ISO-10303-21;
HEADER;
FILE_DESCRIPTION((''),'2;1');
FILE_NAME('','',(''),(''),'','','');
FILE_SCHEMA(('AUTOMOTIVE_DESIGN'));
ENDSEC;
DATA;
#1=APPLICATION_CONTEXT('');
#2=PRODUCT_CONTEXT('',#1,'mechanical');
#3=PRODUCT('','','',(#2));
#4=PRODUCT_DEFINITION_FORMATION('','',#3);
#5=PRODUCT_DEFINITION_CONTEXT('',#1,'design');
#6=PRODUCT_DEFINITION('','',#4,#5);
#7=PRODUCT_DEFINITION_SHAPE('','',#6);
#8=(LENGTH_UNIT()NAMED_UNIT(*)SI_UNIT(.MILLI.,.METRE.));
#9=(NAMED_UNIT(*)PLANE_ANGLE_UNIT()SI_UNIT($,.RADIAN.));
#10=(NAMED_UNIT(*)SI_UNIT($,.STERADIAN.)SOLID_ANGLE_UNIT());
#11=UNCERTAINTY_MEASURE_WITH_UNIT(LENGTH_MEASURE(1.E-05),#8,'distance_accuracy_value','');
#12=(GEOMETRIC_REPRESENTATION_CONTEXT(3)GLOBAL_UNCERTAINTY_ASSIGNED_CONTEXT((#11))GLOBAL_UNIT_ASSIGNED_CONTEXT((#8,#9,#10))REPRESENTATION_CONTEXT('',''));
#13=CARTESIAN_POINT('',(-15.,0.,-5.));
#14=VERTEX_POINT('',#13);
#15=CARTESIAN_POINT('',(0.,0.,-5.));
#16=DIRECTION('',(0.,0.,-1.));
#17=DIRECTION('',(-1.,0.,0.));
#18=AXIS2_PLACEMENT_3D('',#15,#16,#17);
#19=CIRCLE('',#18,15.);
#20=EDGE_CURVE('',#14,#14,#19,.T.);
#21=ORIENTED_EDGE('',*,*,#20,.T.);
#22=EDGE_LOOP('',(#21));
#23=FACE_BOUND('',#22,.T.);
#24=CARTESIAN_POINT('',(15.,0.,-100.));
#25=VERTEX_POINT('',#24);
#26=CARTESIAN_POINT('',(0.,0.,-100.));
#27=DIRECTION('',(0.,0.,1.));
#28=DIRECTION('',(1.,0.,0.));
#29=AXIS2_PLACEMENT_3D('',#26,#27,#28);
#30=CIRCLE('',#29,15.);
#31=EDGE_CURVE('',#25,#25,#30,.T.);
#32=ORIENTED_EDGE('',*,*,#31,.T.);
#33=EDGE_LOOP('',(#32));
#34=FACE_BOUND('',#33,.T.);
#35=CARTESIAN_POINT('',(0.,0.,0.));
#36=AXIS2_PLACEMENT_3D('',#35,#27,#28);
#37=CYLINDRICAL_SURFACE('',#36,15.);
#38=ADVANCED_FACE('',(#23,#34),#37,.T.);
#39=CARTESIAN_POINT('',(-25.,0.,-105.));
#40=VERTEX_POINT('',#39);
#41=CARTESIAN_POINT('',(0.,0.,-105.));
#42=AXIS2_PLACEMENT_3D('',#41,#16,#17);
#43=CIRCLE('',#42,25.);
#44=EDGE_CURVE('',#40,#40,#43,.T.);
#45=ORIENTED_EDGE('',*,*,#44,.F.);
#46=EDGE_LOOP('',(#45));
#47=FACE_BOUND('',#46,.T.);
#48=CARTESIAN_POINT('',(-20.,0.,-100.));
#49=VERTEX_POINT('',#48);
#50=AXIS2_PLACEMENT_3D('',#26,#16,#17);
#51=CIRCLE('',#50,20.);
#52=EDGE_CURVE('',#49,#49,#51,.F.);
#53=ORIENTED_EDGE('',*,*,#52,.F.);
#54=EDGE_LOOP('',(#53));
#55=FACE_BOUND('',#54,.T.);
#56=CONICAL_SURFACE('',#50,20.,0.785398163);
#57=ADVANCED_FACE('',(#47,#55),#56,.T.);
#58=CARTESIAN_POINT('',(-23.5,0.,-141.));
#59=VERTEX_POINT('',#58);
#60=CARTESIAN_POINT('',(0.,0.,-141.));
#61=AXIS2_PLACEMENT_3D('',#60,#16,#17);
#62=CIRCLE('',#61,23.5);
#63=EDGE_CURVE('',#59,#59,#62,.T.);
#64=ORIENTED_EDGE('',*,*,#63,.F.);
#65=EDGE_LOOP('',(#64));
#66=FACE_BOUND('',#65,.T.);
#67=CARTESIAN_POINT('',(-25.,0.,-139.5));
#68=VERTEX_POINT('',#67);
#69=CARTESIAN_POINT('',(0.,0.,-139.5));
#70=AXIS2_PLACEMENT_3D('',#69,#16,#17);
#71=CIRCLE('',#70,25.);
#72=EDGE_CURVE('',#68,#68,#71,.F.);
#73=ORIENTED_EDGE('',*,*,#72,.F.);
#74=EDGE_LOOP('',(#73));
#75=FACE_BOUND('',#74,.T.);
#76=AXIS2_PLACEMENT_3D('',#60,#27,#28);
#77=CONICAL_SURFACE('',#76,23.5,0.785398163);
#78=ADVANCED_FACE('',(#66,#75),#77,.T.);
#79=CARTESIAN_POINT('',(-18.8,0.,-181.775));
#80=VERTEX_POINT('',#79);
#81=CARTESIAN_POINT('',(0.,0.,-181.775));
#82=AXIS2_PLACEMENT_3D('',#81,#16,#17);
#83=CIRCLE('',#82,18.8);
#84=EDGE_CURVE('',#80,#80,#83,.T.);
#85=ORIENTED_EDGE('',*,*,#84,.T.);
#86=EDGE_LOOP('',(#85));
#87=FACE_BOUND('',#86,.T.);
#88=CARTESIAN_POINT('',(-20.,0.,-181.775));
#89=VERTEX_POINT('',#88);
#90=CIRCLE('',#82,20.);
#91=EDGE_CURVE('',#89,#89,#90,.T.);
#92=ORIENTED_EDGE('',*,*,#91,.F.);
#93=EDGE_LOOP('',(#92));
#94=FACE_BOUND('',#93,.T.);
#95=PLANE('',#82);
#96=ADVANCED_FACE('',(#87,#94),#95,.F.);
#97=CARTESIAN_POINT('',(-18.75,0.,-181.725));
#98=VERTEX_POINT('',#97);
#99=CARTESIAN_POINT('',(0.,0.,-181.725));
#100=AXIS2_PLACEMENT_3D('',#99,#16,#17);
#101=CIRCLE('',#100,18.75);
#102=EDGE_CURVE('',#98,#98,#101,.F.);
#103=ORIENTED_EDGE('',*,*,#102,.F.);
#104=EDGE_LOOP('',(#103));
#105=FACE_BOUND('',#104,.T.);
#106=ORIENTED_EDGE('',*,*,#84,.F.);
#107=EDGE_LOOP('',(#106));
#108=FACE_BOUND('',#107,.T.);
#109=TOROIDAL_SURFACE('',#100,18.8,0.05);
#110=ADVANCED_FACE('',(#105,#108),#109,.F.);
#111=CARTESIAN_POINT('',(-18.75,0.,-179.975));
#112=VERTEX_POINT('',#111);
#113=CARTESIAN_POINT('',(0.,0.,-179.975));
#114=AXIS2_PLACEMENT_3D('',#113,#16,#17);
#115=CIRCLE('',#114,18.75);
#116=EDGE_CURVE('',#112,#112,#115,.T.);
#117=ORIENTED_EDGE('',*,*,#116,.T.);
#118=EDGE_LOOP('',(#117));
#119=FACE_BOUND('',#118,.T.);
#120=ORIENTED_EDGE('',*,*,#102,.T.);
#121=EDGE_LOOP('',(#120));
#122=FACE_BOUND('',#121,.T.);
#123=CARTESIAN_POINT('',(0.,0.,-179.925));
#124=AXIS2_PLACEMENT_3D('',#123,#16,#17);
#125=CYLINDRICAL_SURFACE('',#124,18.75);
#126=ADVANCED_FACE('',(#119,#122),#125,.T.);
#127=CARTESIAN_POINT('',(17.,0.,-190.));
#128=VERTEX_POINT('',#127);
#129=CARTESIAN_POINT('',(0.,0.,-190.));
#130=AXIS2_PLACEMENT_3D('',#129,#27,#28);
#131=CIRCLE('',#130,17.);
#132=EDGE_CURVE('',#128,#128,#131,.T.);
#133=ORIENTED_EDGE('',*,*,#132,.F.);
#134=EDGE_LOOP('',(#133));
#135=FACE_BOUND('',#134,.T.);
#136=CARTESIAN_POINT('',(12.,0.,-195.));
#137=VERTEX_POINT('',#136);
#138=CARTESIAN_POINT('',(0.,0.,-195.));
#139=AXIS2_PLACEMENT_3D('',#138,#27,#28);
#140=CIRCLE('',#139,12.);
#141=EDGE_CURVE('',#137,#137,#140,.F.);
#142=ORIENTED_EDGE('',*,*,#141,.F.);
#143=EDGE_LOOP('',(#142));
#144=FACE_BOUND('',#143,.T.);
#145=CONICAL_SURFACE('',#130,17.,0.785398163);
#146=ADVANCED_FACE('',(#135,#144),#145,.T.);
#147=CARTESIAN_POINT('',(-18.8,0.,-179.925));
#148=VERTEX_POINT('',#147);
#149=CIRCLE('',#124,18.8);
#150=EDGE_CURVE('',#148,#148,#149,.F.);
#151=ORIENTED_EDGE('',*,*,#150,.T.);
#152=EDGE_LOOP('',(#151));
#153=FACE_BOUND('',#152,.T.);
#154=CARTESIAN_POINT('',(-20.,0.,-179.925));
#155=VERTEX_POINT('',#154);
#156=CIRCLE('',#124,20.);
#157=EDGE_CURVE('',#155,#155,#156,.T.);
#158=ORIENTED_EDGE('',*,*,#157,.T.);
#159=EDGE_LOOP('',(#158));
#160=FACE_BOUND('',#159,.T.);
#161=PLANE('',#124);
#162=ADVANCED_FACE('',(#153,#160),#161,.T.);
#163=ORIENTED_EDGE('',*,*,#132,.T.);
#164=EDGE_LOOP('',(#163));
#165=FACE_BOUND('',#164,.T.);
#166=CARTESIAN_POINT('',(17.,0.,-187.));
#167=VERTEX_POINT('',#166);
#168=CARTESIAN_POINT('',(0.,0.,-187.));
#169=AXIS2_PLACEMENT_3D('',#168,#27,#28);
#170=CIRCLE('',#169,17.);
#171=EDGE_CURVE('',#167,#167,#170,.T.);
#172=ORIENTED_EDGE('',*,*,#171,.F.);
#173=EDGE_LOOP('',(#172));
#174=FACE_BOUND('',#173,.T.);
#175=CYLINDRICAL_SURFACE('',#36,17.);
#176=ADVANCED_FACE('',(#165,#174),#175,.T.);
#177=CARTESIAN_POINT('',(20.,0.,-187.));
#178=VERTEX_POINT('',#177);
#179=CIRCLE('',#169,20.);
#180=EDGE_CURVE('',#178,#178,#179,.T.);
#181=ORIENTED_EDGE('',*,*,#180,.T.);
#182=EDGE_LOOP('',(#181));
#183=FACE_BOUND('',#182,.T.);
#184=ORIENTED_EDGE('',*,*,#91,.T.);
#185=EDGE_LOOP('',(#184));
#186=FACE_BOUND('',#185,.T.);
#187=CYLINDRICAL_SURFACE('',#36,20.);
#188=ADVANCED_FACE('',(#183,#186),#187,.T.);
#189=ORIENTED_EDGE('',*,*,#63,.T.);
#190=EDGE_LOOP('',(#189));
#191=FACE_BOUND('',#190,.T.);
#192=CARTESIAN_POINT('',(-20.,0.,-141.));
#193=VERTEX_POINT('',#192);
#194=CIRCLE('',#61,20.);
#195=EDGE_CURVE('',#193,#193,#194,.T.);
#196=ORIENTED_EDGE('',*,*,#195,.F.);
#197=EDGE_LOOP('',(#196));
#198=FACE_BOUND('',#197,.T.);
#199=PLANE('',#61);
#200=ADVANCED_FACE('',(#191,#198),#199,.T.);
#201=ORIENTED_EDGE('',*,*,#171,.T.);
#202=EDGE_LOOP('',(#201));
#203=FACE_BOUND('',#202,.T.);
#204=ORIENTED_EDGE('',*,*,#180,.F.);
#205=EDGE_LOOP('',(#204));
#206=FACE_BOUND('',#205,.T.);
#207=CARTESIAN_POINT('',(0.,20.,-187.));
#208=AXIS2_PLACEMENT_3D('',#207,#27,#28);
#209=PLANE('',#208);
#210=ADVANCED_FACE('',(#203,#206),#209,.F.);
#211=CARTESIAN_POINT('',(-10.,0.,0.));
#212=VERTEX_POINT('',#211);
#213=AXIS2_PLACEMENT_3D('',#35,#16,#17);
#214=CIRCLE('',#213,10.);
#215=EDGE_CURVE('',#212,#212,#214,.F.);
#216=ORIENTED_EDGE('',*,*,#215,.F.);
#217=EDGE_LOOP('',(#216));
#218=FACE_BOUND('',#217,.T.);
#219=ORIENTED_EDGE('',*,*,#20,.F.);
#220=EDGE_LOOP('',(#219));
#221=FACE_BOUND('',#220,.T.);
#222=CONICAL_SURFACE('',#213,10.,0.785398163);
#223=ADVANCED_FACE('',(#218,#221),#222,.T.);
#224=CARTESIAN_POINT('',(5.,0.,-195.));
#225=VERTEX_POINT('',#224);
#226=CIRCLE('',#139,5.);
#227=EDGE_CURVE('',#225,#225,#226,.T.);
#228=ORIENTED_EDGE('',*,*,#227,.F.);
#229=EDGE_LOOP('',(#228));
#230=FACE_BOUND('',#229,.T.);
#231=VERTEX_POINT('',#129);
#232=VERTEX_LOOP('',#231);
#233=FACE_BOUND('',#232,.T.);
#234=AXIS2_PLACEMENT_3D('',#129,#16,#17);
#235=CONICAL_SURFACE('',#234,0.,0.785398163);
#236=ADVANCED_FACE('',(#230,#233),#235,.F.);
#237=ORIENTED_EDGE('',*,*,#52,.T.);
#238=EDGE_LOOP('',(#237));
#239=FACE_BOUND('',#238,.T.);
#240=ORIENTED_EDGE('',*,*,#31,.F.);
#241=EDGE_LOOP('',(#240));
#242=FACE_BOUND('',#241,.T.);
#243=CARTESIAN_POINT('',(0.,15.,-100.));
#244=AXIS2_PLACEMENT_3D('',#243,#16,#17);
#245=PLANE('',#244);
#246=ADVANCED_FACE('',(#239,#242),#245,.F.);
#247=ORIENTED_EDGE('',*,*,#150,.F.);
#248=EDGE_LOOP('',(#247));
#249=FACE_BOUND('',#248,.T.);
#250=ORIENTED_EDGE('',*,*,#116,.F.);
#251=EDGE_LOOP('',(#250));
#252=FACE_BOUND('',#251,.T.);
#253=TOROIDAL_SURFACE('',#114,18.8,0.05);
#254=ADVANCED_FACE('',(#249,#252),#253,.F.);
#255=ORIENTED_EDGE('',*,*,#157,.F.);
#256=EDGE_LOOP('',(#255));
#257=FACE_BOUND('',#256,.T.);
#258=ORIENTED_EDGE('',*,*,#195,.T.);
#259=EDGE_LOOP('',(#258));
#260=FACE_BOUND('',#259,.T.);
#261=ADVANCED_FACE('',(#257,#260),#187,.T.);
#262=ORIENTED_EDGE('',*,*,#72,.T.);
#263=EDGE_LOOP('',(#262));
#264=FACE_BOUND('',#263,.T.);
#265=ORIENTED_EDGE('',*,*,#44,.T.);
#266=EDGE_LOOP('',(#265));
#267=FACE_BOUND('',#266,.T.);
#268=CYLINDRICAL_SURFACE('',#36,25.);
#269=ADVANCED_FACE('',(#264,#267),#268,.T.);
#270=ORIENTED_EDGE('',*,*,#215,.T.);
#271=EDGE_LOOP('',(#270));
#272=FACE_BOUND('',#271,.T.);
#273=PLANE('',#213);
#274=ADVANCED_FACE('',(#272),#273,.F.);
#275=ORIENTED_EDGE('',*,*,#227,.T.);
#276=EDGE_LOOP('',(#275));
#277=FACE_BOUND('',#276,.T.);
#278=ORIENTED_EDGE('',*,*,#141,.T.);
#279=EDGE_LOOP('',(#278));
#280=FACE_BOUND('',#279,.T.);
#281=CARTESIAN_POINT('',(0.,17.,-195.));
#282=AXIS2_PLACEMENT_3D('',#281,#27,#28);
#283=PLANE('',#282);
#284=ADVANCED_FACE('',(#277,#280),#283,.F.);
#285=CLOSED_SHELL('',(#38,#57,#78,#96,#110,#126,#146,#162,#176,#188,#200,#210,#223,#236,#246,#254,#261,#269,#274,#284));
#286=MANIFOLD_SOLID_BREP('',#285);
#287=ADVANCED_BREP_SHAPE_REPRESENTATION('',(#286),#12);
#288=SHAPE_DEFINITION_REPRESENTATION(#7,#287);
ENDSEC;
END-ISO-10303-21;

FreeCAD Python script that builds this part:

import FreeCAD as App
import Part
import Sketcher
from FreeCAD import Vector


def edges_at(feature, points):
    """Names of the edges that pass closest to the given points."""
    edges = feature.Shape.Edges
    near = lambda p: min(range(len(edges)), key=lambda i: edges[i].distToShape(Part.Vertex(*p))[0])
    return sorted({f"Edge{near(p) + 1}" for p in points})

doc = App.newDocument("Part")
body = doc.addObject("PartDesign::Body", "Body")

# Sketch on YZ plane
sketch1 = body.newObject("Sketcher::SketchObject", "Sketch")
sketch1.AttachmentSupport = (doc.getObject("YZ_Plane"), [""])
sketch1.MapMode = "FlatFace"
sketch1.addGeometry([
    Part.LineSegment(Vector(15, 0, 0), Vector(0, 0, 0)),  # 0
    Part.LineSegment(Vector(0, 0, 0), Vector(0, -190, 0)),  # 1
    Part.LineSegment(Vector(0, -190, 0), Vector(5, -195, 0)),  # 2
    Part.LineSegment(Vector(5, -195, 0), Vector(17, -195, 0)),  # 3
    Part.LineSegment(Vector(17, -195, 0), Vector(17, -187, 0)),  # 4
    Part.LineSegment(Vector(17, -187, 0), Vector(20, -187, 0)),  # 5
    Part.LineSegment(Vector(20, -187, 0), Vector(20, -147, 0)),  # 6
    Part.LineSegment(Vector(20, -147, 0), Vector(25, -147, 0)),  # 7
    Part.LineSegment(Vector(25, -147, 0), Vector(25, -100, 0)),  # 8
    Part.LineSegment(Vector(25, -100, 0), Vector(15, -100, 0)),  # 9
    Part.LineSegment(Vector(15, -100, 0), Vector(15, 0, 0)),  # 10
], False)
sketch1.addConstraint([
    Sketcher.Constraint("Coincident", 0, 2, 1, 1),
    Sketcher.Constraint("Coincident", 1, 2, 2, 1),
    Sketcher.Constraint("Coincident", 2, 2, 3, 1),
    Sketcher.Constraint("Coincident", 3, 2, 4, 1),
    Sketcher.Constraint("Coincident", 4, 2, 5, 1),
    Sketcher.Constraint("Coincident", 5, 2, 6, 1),
    Sketcher.Constraint("Coincident", 6, 2, 7, 1),
    Sketcher.Constraint("Coincident", 7, 2, 8, 1),
    Sketcher.Constraint("Coincident", 8, 2, 9, 1),
    Sketcher.Constraint("Coincident", 9, 2, 10, 1),
    Sketcher.Constraint("Coincident", 10, 2, 0, 1),
    Sketcher.Constraint("Horizontal", 0),
    Sketcher.Constraint("Vertical", 1),
    Sketcher.Constraint("Horizontal", 3),
    Sketcher.Constraint("Vertical", 4),
    Sketcher.Constraint("Horizontal", 5),
    Sketcher.Constraint("Vertical", 6),
    Sketcher.Constraint("Horizontal", 7),
    Sketcher.Constraint("Vertical", 8),
    Sketcher.Constraint("Horizontal", 9),
    Sketcher.Constraint("Vertical", 10),
    Sketcher.Constraint("Coincident", 0, 2, -1, 1),
    Sketcher.Constraint("DistanceX", 0, 2, 0, 1, 15.0),
    Sketcher.Constraint("DistanceX", 3, 1, 3, 2, 12.0),
    Sketcher.Constraint("DistanceX", 5, 1, 5, 2, 3.0),
    Sketcher.Constraint("DistanceX", 7, 1, 7, 2, 5.0),
    Sketcher.Constraint("DistanceX", 9, 2, 9, 1, 10.0),
    Sketcher.Constraint("DistanceY", 1, 2, 1, 1, 190.0),
    Sketcher.Constraint("DistanceY", 4, 1, 4, 2, 8.0),
    Sketcher.Constraint("DistanceY", 6, 1, 6, 2, 40.0),
    Sketcher.Constraint("DistanceY", 8, 1, 8, 2, 47.0),
    Sketcher.Constraint("DistanceY", 10, 1, 10, 2, 100.0),
])
revolution = body.newObject("PartDesign::Revolution", "Revolution")
revolution.Profile = sketch1
revolution.ReferenceAxis = (sketch1, ["V_Axis"])
revolution.Angle = 360
doc.recompute()

chamfer = body.newObject("PartDesign::Chamfer", "Chamfer")
chamfer.Base = (revolution, edges_at(revolution, [(-25, 0, -100), (-15, 0, 0), (-17, 0, -195)]))
chamfer.Size = 5

# Sketch on XY plane
sketch2 = body.newObject("Sketcher::SketchObject", "Sketch001")
sketch2.AttachmentSupport = (doc.getObject("XY_Plane"), [""])
sketch2.MapMode = "FlatFace"
sketch2.AttachmentOffset = App.Placement(Vector(0, 0, -181.775), App.Rotation())
sketch2.addGeometry([
    Part.Circle(Vector(0, 0, 0), Vector(0, 0, 1), 20),
    Part.Circle(Vector(0, 0, 0), Vector(0, 0, 1), 18.75),
], False)
sketch2.addConstraint([
    Sketcher.Constraint("Coincident", 0, 3, -1, 1),
    Sketcher.Constraint("Coincident", 1, 3, -1, 1),
    Sketcher.Constraint("Diameter", 0, 40.0),
    Sketcher.Constraint("Diameter", 1, 37.5),
])
pocket1 = body.newObject("PartDesign::Pocket", "Pocket")
pocket1.Profile = sketch2
pocket1.Length = 1.85
pocket1.Reversed = True
doc.recompute()

fillet = body.newObject("PartDesign::Fillet", "Fillet")
fillet.Base = (pocket1, edges_at(pocket1, [(18.75, 0, -179.925), (18.75, 0, -181.775)]))
fillet.Radius = 0.05
doc.recompute()

chamfer2 = body.newObject("PartDesign::Chamfer", "Chamfer001")
chamfer2.Base = (fillet, edges_at(fillet, [(-25, 0, -147)]))
chamfer2.Size = 1.5

# Sketch on XY plane
sketch3 = body.newObject("Sketcher::SketchObject", "Sketch002")
sketch3.AttachmentSupport = (doc.getObject("XY_Plane"), [""])
sketch3.MapMode = "FlatFace"
sketch3.AttachmentOffset = App.Placement(Vector(0, 0, -147), App.Rotation())
sketch3.addGeometry([
    Part.Circle(Vector(0, 0, 0), Vector(0, 0, 1), 25),
    Part.Circle(Vector(0, 0, 0), Vector(0, 0, 1), 20),
], False)
sketch3.addConstraint([
    Sketcher.Constraint("Coincident", 0, 3, -1, 1),
    Sketcher.Constraint("Coincident", 1, 3, -1, 1),
    Sketcher.Constraint("Diameter", 0, 50.0),
    Sketcher.Constraint("Diameter", 1, 40.0),
])
pocket2 = body.newObject("PartDesign::Pocket", "Pocket001")
pocket2.Profile = sketch3
pocket2.Length = 6
pocket2.Reversed = True
doc.recompute()

chamfer3 = body.newObject("PartDesign::Chamfer", "Chamfer002")
chamfer3.Base = (pocket2, edges_at(pocket2, [(-25, 0, -141)]))
chamfer3.Size = 1.5

doc.recompute()
